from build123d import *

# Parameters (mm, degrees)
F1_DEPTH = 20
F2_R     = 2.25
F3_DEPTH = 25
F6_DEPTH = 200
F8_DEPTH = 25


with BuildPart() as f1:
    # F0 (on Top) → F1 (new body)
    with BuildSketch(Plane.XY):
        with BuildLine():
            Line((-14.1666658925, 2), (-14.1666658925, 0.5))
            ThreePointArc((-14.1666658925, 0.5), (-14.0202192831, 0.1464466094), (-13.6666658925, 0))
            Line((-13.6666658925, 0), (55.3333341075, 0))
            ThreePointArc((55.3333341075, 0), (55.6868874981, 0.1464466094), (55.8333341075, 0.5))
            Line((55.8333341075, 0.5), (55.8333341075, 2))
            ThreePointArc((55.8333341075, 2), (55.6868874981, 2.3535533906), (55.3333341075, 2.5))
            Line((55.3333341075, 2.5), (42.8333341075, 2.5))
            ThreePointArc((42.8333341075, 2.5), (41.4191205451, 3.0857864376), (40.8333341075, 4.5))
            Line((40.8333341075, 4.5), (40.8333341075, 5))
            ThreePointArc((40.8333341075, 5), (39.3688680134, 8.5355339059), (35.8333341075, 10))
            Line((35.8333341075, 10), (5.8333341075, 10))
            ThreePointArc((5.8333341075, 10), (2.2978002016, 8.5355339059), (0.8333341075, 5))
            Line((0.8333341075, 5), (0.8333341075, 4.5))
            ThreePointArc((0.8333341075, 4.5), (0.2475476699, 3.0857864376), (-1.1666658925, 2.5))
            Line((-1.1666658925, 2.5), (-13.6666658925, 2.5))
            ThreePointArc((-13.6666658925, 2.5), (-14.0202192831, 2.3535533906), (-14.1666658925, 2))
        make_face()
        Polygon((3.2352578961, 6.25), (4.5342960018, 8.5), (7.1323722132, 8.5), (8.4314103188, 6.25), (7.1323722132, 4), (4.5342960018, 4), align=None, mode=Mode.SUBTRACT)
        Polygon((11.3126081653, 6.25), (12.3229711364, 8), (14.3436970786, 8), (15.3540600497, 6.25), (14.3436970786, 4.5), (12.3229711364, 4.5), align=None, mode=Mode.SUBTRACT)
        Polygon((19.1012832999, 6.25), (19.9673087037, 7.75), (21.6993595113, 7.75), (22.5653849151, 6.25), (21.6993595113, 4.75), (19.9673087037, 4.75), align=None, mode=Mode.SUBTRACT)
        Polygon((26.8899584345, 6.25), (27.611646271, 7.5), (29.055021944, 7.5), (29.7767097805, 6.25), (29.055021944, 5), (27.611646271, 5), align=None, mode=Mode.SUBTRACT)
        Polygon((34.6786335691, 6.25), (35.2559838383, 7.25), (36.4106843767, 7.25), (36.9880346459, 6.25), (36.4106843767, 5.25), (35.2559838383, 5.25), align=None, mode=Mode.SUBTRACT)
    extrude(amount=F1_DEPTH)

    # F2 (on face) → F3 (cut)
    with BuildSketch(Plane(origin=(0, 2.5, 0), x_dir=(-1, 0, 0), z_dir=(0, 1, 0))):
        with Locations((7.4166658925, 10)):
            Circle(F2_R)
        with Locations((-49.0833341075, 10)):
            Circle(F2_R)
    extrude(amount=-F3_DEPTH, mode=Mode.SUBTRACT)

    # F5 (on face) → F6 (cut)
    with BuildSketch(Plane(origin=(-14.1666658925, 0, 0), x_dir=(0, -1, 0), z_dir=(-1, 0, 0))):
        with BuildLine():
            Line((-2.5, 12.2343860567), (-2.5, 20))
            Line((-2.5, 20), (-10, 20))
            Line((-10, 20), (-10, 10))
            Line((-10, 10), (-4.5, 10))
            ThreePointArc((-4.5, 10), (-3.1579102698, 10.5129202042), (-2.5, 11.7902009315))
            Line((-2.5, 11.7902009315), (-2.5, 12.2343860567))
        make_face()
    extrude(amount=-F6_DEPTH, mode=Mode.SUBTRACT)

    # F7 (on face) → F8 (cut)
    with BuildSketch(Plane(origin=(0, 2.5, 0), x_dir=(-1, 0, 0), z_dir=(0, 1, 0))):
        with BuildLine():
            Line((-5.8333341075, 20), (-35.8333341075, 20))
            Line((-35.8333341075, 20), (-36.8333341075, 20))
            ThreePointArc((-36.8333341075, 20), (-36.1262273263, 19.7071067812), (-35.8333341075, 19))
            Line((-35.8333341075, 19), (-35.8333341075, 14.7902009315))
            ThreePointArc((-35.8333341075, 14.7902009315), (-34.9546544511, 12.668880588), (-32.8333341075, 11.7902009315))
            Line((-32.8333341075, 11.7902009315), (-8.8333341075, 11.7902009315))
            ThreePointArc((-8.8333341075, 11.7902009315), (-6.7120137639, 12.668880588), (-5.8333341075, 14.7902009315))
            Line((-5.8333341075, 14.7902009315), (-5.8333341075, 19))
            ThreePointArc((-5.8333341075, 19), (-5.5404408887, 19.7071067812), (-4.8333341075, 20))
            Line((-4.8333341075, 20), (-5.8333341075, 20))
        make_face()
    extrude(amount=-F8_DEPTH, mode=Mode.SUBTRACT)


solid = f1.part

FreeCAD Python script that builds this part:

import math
import FreeCAD as App
import Part
import Sketcher

V = App.Vector
Q = App.Units.Quantity


def add_polygon(sketch, points):
    """Adds a closed chain of lines whose ends are joined by coincident constraints."""
    first, n = sketch.GeometryCount, len(points)
    for a, b in zip(points, points[1:] + points[:1]):
        sketch.addGeometry(Part.LineSegment(App.Vector(*a, 0), App.Vector(*b, 0)), False)
    for i in range(n):
        sketch.addConstraint(Sketcher.Constraint("Coincident", first + i, 2, first + (i + 1) % n, 1))

doc = App.newDocument("Part")
body = doc.addObject("PartDesign::Body", "Body")

# Sketch on XY plane
sketch1 = doc.addObject("Sketcher::SketchObject", "Sketch")
body.addObject(sketch1)
sketch1.AttachmentSupport = (doc.XY_Plane, [""])
sketch1.MapMode = "FlatFace"
sketch1.addGeometry(Part.LineSegment(V(-14.166666, 2, 0), V(-14.166666, 0.5, 0)), False)  # 0
sketch1.addGeometry(Part.ArcOfCircle(Part.Circle(V(-13.666666, 0.5, 0), V(0, 0, 1), 0.5), math.radians(180), math.radians(270)), False)  # 1
sketch1.addGeometry(Part.LineSegment(V(-13.666666, 0, 0), V(55.333334, 0, 0)), False)  # 2
sketch1.addGeometry(Part.ArcOfCircle(Part.Circle(V(55.333334, 0.5, 0), V(0, 0, 1), 0.5), math.radians(-90), math.radians(0)), False)  # 3
sketch1.addGeometry(Part.LineSegment(V(55.833334, 0.5, 0), V(55.833334, 2, 0)), False)  # 4
sketch1.addGeometry(Part.ArcOfCircle(Part.Circle(V(55.333334, 2, 0), V(0, 0, 1), 0.5), math.radians(0), math.radians(90)), False)  # 5
sketch1.addGeometry(Part.LineSegment(V(55.333334, 2.5, 0), V(42.833334, 2.5, 0)), False)  # 6
sketch1.addGeometry(Part.ArcOfCircle(Part.Circle(V(42.833334, 4.5, 0), V(0, 0, 1), 2), math.radians(180), math.radians(270)), False)  # 7
sketch1.addGeometry(Part.LineSegment(V(40.833334, 4.5, 0), V(40.833334, 5, 0)), False)  # 8
sketch1.addGeometry(Part.ArcOfCircle(Part.Circle(V(35.833334, 5, 0), V(0, 0, 1), 5), math.radians(0), math.radians(90)), False)  # 9
sketch1.addGeometry(Part.LineSegment(V(35.833334, 10, 0), V(5.833334, 10, 0)), False)  # 10
sketch1.addGeometry(Part.ArcOfCircle(Part.Circle(V(5.833334, 5, 0), V(0, 0, 1), 5), math.radians(90), math.radians(180)), False)  # 11
sketch1.addGeometry(Part.LineSegment(V(0.833334, 5, 0), V(0.833334, 4.5, 0)), False)  # 12
sketch1.addGeometry(Part.ArcOfCircle(Part.Circle(V(-1.166666, 4.5, 0), V(0, 0, 1), 2), math.radians(-90), math.radians(0)), False)  # 13
sketch1.addGeometry(Part.LineSegment(V(-1.166666, 2.5, 0), V(-13.666666, 2.5, 0)), False)  # 14
sketch1.addGeometry(Part.ArcOfCircle(Part.Circle(V(-13.666666, 2, 0), V(0, 0, 1), 0.5), math.radians(90), math.radians(180)), False)  # 15
add_polygon(sketch1, [(4.534296, 4), (3.235258, 6.25), (4.534296, 8.5), (7.132372, 8.5), (8.43141, 6.25), (7.132372, 4)])  # lines 16-21
add_polygon(sketch1, [(12.322971, 4.5), (11.312608, 6.25), (12.322971, 8), (14.343697, 8), (15.35406, 6.25), (14.343697, 4.5)])  # lines 22-27
add_polygon(sketch1, [(19.967309, 4.75), (19.101283, 6.25), (19.967309, 7.75), (21.69936, 7.75), (22.565385, 6.25), (21.69936, 4.75)])  # lines 28-33
add_polygon(sketch1, [(27.611646, 5), (26.889958, 6.25), (27.611646, 7.5), (29.055022, 7.5), (29.77671, 6.25), (29.055022, 5)])  # lines 34-39
add_polygon(sketch1, [(35.255984, 5.25), (34.678634, 6.25), (35.255984, 7.25), (36.410684, 7.25), (36.988035, 6.25), (36.410684, 5.25)])  # lines 40-45
sketch1.addConstraint([
    Sketcher.Constraint("Tangent", 0, 2, 1, 1),
    Sketcher.Constraint("Tangent", 1, 2, 2, 1),
    Sketcher.Constraint("Tangent", 2, 2, 3, 1),
    Sketcher.Constraint("Tangent", 3, 2, 4, 1),
    Sketcher.Constraint("Tangent", 4, 2, 5, 1),
    Sketcher.Constraint("Tangent", 5, 2, 6, 1),
    Sketcher.Constraint("Tangent", 6, 2, 7, 2),
    Sketcher.Constraint("Tangent", 7, 1, 8, 1),
    Sketcher.Constraint("Tangent", 8, 2, 9, 1),
    Sketcher.Constraint("Tangent", 9, 2, 10, 1),
    Sketcher.Constraint("Tangent", 10, 2, 11, 1),
    Sketcher.Constraint("Tangent", 11, 2, 12, 1),
    Sketcher.Constraint("Tangent", 12, 2, 13, 2),
    Sketcher.Constraint("Tangent", 13, 1, 14, 1),
    Sketcher.Constraint("Tangent", 14, 2, 15, 1),
    Sketcher.Constraint("Tangent", 15, 2, 0, 1),
    Sketcher.Constraint("Vertical", 0),
    Sketcher.Constraint("Horizontal", 2),
    Sketcher.Constraint("Vertical", 4),
    Sketcher.Constraint("Horizontal", 6),
    Sketcher.Constraint("Vertical", 8),
    Sketcher.Constraint("Horizontal", 10),
    Sketcher.Constraint("Vertical", 12),
    Sketcher.Constraint("Horizontal", 14),
    Sketcher.Constraint("Horizontal", 18),
    Sketcher.Constraint("Horizontal", 21),
    Sketcher.Constraint("Horizontal", 24),
    Sketcher.Constraint("Horizontal", 27),
    Sketcher.Constraint("Horizontal", 30),
    Sketcher.Constraint("Horizontal", 33),
    Sketcher.Constraint("Horizontal", 36),
    Sketcher.Constraint("Horizontal", 39),
    Sketcher.Constraint("Horizontal", 42),
    Sketcher.Constraint("Horizontal", 45),
    Sketcher.Constraint("Equal", 1, 3),
    Sketcher.Constraint("Equal", 3, 5),
    Sketcher.Constraint("Equal", 9, 11),
    Sketcher.Constraint("Equal", 7, 13),
    Sketcher.Constraint("Equal", 5, 15),
    Sketcher.Constraint("PointOnObject", 1, 2, -1),
    Sketcher.Constraint("Parallel", 16, 19),
    Sketcher.Constraint("Parallel", 17, 20),
    Sketcher.Constraint("Parallel", 19, 22),
    Sketcher.Constraint("Parallel", 20, 23),
    Sketcher.Constraint("Parallel", 22, 25),
    Sketcher.Constraint("Parallel", 23, 26),
    Sketcher.Constraint("Parallel", 25, 28),
    Sketcher.Constraint("Parallel", 26, 29),
    Sketcher.Constraint("Parallel", 28, 31),
    Sketcher.Constraint("Parallel", 29, 32),
    Sketcher.Constraint("Parallel", 31, 34),
    Sketcher.Constraint("Parallel", 32, 35),
    Sketcher.Constraint("Parallel", 34, 37),
    Sketcher.Constraint("Parallel", 35, 38),
    Sketcher.Constraint("Parallel", 37, 40),
    Sketcher.Constraint("Parallel", 38, 41),
    Sketcher.Constraint("Parallel", 40, 43),
    Sketcher.Constraint("Parallel", 41, 44),
    Sketcher.Constraint("Horizontal", 7, 3, 13, 3),
    Sketcher.Constraint("Horizontal", 16, 2, 19, 2),
    Sketcher.Constraint("Horizontal", 19, 2, 22, 2),
    Sketcher.Constraint("Horizontal", 22, 2, 25, 2),
    Sketcher.Constraint("Horizontal", 12, 2, 26, 2),
    Sketcher.Constraint("Horizontal", 25, 2, 28, 2),
    Sketcher.Constraint("Horizontal", 28, 2, 31, 2),
    Sketcher.Constraint("Horizontal", 31, 2, 34, 2),
    Sketcher.Constraint("Horizontal", 34, 2, 37, 2),
    Sketcher.Constraint("Horizontal", 11, 2, 38, 2),
    Sketcher.Constraint("Horizontal", 37, 2, 40, 2),
    Sketcher.Constraint("Horizontal", 40, 2, 43, 2),
    Sketcher.Constraint("Vertical", 18, 2, 20, 2),
    Sketcher.Constraint("Vertical", 17, 2, 21, 2),
    Sketcher.Constraint("Vertical", 24, 2, 26, 2),
    Sketcher.Constraint("Vertical", 30, 2, 32, 2),
    Sketcher.Constraint("Vertical", 36, 2, 38, 2),
    Sketcher.Constraint("Vertical", 42, 2, 44, 2),
    Sketcher.Constraint("Equal", 6, 14),
    Sketcher.Constraint("Radius", 7, 2.0),
    Sketcher.Constraint("Radius", 9, 5.0),
    Sketcher.Constraint("Radius", 1, 0.5),
    Sketcher.Constraint("DistanceX", 2, 1, 2, 2, 69.0),
    Sketcher.Constraint("DistanceX", 10, 2, 10, 1, 30.0),
    Sketcher.Constraint("Angle", 16, Q("120 deg")),
    Sketcher.Constraint("DistanceY", 0, 2, 0, 1, 1.5),
    Sketcher.Constraint("DistanceY", 8, 1, 8, 2, 0.5),
    Sketcher.Constraint("DistanceY", -1, 1, 20, 2, 4.0),
    Sketcher.Constraint("DistanceY", -1, 1, 23, 2, 8.0),
    Sketcher.Constraint("DistanceY", 32, 2, 30, 2, 3.0),
    Sketcher.Constraint("DistanceY", 40, 2, 41, 2, 1.0),
    Sketcher.Constraint("DistanceX", 42, 1, 42, 2, 1.154701),
    Sketcher.Constraint("DistanceX", 30, 1, 30, 2, 1.732051),
    Sketcher.Constraint("DistanceX", 18, 2, 23, 2, 5.190599),
    Sketcher.Constraint("DistanceX", 25, 2, 30, 2, 6.345299),
    Sketcher.Constraint("DistanceX", 30, 2, 34, 2, 5.190599),
    Sketcher.Constraint("DistanceX", 40, 2, 9, 3, 1.154701),
    Sketcher.Constraint("DistanceX", 18, 1, 18, 2, 2.598076),
    Sketcher.Constraint("DistanceX", 24, 1, 24, 2, 2.020726),
    Sketcher.Constraint("DistanceX", 36, 1, 36, 2, 1.443376),
    Sketcher.Constraint("DistanceX", -1, 1, 19, 2, 8.43141),
    Sketcher.Constraint("DistanceX", 17, 2, 10, 2, 1.299038),
])
pad1 = doc.addObject("PartDesign::Pad", "Pad")
body.addObject(pad1)
pad1.Profile = sketch1
pad1.Length = 20

# Sketch on XZ plane
sketch2 = doc.addObject("Sketcher::SketchObject", "Sketch001")
body.addObject(sketch2)
sketch2.AttachmentSupport = (doc.XZ_Plane, [""])
sketch2.MapMode = "FlatFace"
sketch2.AttachmentOffset = App.Placement(V(0, 0, -2.5), App.Rotation())
sketch2.addGeometry([
    Part.Circle(V(-7.416666, 10, 0), V(0, 0, 1), 2.25),
    Part.Circle(V(49.083334, 10, 0), V(0, 0, 1), 2.25),
], False)
sketch2.addConstraint([
    Sketcher.Constraint("Equal", 0, 1),
    Sketcher.Constraint("Horizontal", 0, 3, 1, 3),
    Sketcher.Constraint("Diameter", 0, 4.5),
    Sketcher.Constraint("DistanceY", -1, 1, 0, 3, 10.0),
    Sketcher.Constraint("DistanceX", 0, 3, 1, 3, 56.5),
    Sketcher.Constraint("DistanceX", 0, 3, -1, 1, 7.416666),
])
pocket1 = doc.addObject("PartDesign::Pocket", "Pocket")
body.addObject(pocket1)
pocket1.Profile = sketch2
pocket1.Length = 25
pocket1.Reversed = True

# Sketch on YZ plane
sketch3 = doc.addObject("Sketcher::SketchObject", "Sketch002")
body.addObject(sketch3)
sketch3.AttachmentSupport = (doc.YZ_Plane, [""])
sketch3.MapMode = "FlatFace"
sketch3.AttachmentOffset = App.Placement(V(0, 0, -14.166666), App.Rotation())
sketch3.addGeometry([
    Part.LineSegment(V(2.5, 20, 0), V(10, 20, 0)),  # 0
    Part.LineSegment(V(10, 20, 0), V(10, 10, 0)),  # 1
    Part.LineSegment(V(10, 10, 0), V(4.5, 10, 0)),  # 2
    Part.ArcOfCircle(Part.Circle(V(4.5, 12.012293, 0), V(0, 0, 1), 2.012293), math.radians(-173.663477), math.radians(-90)),  # 3
    Part.LineSegment(V(2.5, 11.790201, 0), V(2.5, 20, 0)),  # 4
], False)
sketch3.addConstraint([
    Sketcher.Constraint("Coincident", 0, 2, 1, 1),
    Sketcher.Constraint("Coincident", 1, 2, 2, 1),
    Sketcher.Constraint("Tangent", 2, 2, 3, 2),
    Sketcher.Constraint("Coincident", 3, 1, 4, 1),
    Sketcher.Constraint("Coincident", 4, 2, 0, 1),
    Sketcher.Constraint("Horizontal", 0),
    Sketcher.Constraint("Vertical", 1),
    Sketcher.Constraint("Horizontal", 2),
    Sketcher.Constraint("Vertical", 4),
    Sketcher.Constraint("DistanceY", 1, 2, 1, 1, 10.0),
    Sketcher.Constraint("DistanceX", 0, 1, 0, 2, 7.5),
    Sketcher.Constraint("DistanceX", 2, 2, 2, 1, 5.5),
    Sketcher.Constraint("DistanceX", -1, 1, 0, 2, 10.0),
    Sketcher.Constraint("DistanceY", -1, 1, 0, 2, 20.0),
    Sketcher.Constraint("DistanceY", 4, 1, 4, 2, 8.209799),
])
pocket2 = doc.addObject("PartDesign::Pocket", "Pocket001")
body.addObject(pocket2)
pocket2.Profile = sketch3
pocket2.Length = 200
pocket2.Reversed = True

# Sketch on XZ plane
sketch4 = doc.addObject("Sketcher::SketchObject", "Sketch003")
body.addObject(sketch4)
sketch4.AttachmentSupport = (doc.XZ_Plane, [""])
sketch4.MapMode = "FlatFace"
sketch4.AttachmentOffset = App.Placement(V(0, 0, -2.5), App.Rotation())
sketch4.addGeometry([
    Part.ArcOfCircle(Part.Circle(V(36.833334, 19, 0), V(0, 0, 1), 1), math.radians(90), math.radians(180)),  # 0
    Part.LineSegment(V(35.833334, 19, 0), V(35.833334, 14.790201, 0)),  # 1
    Part.ArcOfCircle(Part.Circle(V(32.833334, 14.790201, 0), V(0, 0, 1), 3), math.radians(-90), math.radians(0)),  # 2
    Part.LineSegment(V(32.833334, 11.790201, 0), V(8.833334, 11.790201, 0)),  # 3
    Part.ArcOfCircle(Part.Circle(V(8.833334, 14.790201, 0), V(0, 0, 1), 3), math.radians(-180), math.radians(-90)),  # 4
    Part.LineSegment(V(5.833334, 14.790201, 0), V(5.833334, 19, 0)),  # 5
    Part.ArcOfCircle(Part.Circle(V(4.833334, 19, 0), V(0, 0, 1), 1), math.radians(0), math.radians(90)),  # 6
    Part.LineSegment(V(4.833334, 20, 0), V(36.833334, 20, 0)),  # 7
], False)
sketch4.addConstraint([
    Sketcher.Constraint("Tangent", 0, 2, 1, 1),
    Sketcher.Constraint("Tangent", 1, 2, 2, 2),
    Sketcher.Constraint("Tangent", 2, 1, 3, 1),
    Sketcher.Constraint("Tangent", 3, 2, 4, 2),
    Sketcher.Constraint("Tangent", 4, 1, 5, 1),
    Sketcher.Constraint("Tangent", 5, 2, 6, 1),
    Sketcher.Constraint("Tangent", 6, 2, 7, 1),
    Sketcher.Constraint("Tangent", 7, 2, 0, 1),
    Sketcher.Constraint("Vertical", 1),
    Sketcher.Constraint("Horizontal", 3),
    Sketcher.Constraint("Vertical", 5),
    Sketcher.Constraint("Horizontal", 7),
    Sketcher.Constraint("Equal", 2, 4),
    Sketcher.Constraint("Equal", 0, 6),
    Sketcher.Constraint("Radius", 0, 1.0),
    Sketcher.Constraint("Radius", 2, 3.0),
    Sketcher.Constraint("DistanceX", 3, 2, 3, 1, 24.0),
    Sketcher.Constraint("DistanceY", -1, 1, 0, 3, 19.0),
    Sketcher.Constraint("DistanceY", 1, 2, 1, 1, 4.209799),
    Sketcher.Constraint("DistanceX", -1, 1, 0, 3, 36.833334),
])
pocket3 = doc.addObject("PartDesign::Pocket", "Pocket002")
body.addObject(pocket3)
pocket3.Profile = sketch4
pocket3.Length = 25
pocket3.Reversed = True

doc.recompute()
